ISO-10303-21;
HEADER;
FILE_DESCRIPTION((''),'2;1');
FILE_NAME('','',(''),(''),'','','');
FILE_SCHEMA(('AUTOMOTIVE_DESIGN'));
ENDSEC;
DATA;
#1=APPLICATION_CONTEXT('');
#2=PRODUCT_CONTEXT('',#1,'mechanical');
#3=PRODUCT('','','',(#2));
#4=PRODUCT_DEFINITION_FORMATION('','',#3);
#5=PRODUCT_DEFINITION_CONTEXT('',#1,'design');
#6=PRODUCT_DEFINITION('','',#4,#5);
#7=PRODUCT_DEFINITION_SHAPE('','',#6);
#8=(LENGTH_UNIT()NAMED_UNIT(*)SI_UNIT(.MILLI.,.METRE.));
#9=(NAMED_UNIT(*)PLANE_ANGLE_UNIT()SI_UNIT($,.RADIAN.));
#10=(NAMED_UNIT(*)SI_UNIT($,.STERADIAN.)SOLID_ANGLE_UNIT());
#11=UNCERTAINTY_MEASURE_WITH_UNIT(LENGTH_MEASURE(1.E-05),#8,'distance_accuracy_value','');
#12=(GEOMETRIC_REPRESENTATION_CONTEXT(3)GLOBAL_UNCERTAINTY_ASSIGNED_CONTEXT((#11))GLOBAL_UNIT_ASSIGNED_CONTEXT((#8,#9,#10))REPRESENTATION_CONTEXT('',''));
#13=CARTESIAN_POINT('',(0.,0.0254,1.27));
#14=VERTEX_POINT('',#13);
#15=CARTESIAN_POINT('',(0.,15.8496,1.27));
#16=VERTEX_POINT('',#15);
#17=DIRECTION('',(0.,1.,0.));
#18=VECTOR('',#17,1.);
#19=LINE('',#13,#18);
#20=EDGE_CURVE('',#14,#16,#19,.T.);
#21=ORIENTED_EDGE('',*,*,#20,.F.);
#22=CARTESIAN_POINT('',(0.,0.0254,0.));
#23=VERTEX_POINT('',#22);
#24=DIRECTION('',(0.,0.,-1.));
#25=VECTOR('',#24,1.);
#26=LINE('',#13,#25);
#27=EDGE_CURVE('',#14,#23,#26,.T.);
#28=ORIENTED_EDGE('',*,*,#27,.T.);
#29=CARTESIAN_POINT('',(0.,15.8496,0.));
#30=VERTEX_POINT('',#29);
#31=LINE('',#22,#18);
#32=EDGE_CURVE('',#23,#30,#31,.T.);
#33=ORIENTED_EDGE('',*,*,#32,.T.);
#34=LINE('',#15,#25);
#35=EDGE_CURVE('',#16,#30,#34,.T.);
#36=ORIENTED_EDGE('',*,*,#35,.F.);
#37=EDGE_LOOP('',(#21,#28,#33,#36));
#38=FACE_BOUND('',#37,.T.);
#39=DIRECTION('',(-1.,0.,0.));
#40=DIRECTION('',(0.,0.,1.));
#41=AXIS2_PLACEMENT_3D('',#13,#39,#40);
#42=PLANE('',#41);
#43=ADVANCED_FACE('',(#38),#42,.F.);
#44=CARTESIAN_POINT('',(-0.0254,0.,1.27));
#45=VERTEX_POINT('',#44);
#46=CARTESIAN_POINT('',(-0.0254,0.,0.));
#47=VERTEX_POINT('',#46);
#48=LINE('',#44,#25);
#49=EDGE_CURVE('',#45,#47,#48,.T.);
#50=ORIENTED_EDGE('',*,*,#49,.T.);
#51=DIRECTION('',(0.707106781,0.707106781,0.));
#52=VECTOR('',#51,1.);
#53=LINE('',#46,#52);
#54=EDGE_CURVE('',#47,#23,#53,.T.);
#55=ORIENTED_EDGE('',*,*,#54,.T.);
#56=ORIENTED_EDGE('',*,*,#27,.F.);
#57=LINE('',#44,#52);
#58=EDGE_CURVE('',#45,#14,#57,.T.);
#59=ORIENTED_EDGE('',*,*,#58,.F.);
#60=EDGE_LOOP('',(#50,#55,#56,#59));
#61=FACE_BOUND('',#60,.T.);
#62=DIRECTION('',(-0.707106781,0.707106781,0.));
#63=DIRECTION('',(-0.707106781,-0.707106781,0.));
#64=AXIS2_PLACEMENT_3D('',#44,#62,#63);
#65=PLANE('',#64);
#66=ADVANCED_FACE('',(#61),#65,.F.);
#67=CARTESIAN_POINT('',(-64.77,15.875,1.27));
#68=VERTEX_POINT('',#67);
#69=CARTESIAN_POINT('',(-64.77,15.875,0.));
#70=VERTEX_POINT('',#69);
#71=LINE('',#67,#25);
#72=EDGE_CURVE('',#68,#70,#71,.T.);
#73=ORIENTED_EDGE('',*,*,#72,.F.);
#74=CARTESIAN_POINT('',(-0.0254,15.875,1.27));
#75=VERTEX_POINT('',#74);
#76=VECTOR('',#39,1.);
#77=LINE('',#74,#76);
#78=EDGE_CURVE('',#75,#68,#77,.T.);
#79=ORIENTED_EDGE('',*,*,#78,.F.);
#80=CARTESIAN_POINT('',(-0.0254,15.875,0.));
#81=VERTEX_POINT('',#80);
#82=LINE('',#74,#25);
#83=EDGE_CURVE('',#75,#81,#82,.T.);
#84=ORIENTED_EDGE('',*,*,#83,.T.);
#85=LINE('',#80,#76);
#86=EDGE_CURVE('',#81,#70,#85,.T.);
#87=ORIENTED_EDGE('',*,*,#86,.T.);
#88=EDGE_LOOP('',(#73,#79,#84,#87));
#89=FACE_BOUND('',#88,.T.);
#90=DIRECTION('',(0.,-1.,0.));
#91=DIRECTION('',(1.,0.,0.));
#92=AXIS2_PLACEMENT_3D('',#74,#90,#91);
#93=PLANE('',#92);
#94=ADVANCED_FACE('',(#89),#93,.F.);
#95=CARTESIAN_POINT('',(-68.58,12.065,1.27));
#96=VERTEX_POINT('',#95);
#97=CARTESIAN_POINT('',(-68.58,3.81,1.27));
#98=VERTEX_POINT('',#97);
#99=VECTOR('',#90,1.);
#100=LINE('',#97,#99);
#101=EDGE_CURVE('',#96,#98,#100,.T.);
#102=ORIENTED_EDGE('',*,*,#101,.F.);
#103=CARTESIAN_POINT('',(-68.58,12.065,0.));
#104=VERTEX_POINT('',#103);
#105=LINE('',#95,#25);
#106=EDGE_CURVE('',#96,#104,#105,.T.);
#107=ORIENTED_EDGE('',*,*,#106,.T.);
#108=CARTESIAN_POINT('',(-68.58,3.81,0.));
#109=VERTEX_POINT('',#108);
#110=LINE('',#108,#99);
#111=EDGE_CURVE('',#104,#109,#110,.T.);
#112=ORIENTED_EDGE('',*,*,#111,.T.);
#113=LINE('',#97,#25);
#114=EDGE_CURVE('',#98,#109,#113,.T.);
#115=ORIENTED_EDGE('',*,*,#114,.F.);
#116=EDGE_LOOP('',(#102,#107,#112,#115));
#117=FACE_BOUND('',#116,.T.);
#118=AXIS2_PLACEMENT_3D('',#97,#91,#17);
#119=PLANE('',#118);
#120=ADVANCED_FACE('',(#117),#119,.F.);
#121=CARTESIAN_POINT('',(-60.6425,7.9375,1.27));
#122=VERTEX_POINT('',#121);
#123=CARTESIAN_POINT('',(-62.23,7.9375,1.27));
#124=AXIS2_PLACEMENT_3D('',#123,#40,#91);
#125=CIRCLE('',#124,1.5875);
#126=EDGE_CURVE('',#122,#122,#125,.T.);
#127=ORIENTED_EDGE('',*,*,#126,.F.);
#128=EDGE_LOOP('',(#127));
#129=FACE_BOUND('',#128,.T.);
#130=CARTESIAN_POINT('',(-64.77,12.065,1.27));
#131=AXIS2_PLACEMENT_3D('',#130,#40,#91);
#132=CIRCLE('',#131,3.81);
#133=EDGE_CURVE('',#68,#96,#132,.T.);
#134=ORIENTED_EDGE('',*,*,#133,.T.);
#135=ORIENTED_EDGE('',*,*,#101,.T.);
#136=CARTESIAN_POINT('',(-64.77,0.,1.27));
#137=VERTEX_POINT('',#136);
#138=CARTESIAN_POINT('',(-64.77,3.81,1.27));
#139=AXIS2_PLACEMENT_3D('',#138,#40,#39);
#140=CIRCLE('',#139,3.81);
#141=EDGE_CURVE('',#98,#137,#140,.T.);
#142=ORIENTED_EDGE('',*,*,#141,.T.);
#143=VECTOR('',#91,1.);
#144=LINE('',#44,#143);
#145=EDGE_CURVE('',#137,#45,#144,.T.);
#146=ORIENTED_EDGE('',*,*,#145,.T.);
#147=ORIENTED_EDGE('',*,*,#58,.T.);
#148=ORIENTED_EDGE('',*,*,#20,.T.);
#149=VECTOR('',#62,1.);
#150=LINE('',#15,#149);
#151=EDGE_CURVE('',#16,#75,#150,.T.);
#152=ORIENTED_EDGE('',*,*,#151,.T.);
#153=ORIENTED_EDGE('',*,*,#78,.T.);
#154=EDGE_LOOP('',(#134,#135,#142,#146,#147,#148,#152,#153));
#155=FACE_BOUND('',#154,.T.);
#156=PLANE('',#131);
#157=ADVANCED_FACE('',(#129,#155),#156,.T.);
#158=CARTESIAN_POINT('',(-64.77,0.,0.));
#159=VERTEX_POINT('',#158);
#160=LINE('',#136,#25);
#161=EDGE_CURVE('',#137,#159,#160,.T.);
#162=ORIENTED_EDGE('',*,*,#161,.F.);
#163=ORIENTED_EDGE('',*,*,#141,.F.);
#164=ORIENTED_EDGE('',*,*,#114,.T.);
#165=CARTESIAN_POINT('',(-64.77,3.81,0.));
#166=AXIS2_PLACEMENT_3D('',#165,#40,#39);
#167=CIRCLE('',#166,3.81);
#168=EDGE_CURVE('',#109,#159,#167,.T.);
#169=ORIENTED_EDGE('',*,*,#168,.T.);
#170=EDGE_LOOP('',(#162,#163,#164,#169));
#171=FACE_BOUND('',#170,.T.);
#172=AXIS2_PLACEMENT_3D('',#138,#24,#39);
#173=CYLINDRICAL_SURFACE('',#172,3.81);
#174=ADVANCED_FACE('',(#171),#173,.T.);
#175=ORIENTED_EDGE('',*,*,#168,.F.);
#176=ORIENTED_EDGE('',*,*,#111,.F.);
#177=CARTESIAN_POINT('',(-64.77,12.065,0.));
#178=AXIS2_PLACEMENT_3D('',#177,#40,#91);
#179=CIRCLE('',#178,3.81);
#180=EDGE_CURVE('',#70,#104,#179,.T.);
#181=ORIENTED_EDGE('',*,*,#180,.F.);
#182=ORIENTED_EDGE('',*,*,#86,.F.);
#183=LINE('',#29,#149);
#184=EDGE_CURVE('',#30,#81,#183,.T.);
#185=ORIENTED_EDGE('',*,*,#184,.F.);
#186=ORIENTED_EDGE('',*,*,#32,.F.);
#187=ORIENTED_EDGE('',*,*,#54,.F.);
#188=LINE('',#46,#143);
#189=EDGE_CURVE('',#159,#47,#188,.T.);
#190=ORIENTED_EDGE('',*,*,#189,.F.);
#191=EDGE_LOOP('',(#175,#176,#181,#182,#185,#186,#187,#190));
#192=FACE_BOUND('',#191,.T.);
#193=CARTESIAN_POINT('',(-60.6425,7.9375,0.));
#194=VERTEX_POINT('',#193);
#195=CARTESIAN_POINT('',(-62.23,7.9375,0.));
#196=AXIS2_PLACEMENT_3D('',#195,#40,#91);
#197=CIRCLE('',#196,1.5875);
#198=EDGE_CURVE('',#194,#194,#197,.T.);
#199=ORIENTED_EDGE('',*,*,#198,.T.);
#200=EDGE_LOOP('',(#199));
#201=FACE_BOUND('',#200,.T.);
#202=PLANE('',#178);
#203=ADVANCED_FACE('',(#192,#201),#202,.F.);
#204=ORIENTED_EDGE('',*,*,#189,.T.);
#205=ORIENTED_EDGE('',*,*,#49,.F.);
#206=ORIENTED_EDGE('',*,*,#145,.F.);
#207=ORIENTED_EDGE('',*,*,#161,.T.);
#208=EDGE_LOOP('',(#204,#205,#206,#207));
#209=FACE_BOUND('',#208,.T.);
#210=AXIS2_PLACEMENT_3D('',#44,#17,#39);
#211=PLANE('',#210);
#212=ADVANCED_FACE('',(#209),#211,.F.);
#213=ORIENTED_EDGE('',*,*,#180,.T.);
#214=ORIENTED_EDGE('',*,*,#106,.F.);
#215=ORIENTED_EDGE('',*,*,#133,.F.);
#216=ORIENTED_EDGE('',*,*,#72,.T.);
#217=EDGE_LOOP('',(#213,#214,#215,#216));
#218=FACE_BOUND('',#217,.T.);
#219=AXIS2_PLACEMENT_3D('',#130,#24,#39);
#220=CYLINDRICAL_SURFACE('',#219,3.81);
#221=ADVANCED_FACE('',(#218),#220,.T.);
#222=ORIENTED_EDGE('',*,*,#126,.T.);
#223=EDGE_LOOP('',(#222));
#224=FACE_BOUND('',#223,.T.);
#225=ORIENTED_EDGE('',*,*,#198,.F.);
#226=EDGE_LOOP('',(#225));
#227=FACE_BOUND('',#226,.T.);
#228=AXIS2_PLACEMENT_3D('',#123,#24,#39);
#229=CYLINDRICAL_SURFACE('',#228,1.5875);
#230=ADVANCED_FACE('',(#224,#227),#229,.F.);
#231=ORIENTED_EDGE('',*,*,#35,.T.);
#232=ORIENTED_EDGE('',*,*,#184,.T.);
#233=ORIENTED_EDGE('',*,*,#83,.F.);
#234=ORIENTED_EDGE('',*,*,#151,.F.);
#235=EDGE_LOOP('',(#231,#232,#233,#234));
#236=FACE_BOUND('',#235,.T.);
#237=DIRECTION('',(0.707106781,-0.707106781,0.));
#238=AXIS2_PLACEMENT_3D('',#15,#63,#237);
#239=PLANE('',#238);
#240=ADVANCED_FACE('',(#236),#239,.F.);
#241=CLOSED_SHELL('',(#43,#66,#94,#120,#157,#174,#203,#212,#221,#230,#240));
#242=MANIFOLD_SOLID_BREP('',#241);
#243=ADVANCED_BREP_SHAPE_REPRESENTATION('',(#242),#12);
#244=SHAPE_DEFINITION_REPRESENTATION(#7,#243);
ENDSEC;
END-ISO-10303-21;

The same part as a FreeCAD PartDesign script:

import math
import FreeCAD as App
import Part
import Sketcher

V = App.Vector
Q = App.Units.Quantity

doc = App.newDocument("Part")
params = doc.addObject("Spreadsheet::Sheet", "Params")
for row, (alias, value) in enumerate([
    ("sketch1_radius", "0.15 in"),
    ("sketch1_diameter", "0.125 in"),
    ("sketch1_width", "2.549 in"),
    ("sketch1_height", "0.325 in"),
    ("pad1_length", "0.05 in"),
], start=1):
    params.set(f"A{row}", alias)
    params.set(f"B{row}", "=" + value)
    params.setAlias(f"B{row}", alias)

body = doc.addObject("PartDesign::Body", "Body")

# Sketch on XY plane
sketch1 = doc.addObject("Sketcher::SketchObject", "Sketch")
body.addObject(sketch1)
sketch1.AttachmentSupport = (doc.XY_Plane, [""])
sketch1.MapMode = "FlatFace"
sketch1.addGeometry([
    Part.LineSegment(V(0, 15.8496, 0), V(-0.0254, 15.875, 0)),  # 0
    Part.LineSegment(V(-0.0254, 15.875, 0), V(-64.77, 15.875, 0)),  # 1
    Part.ArcOfCircle(Part.Circle(V(-64.77, 12.065, 0), V(0, 0, 1), 3.81), math.radians(90), math.radians(180)),  # 2
    Part.LineSegment(V(-68.58, 12.065, 0), V(-68.58, 3.81, 0)),  # 3
    Part.ArcOfCircle(Part.Circle(V(-64.77, 3.81, 0), V(0, 0, 1), 3.81), math.radians(-180), math.radians(-90)),  # 4
    Part.LineSegment(V(-64.77, 0, 0), V(-0.0254, 0, 0)),  # 5
    Part.LineSegment(V(-0.0254, 0, 0), V(0, 0.0254, 0)),  # 6
    Part.LineSegment(V(0, 0.0254, 0), V(0, 15.8496, 0)),  # 7
    Part.Circle(V(-62.23, 7.9375, 0), V(0, 0, 1), 1.5875),  # 8
], False)
sketch1.addConstraint([
    Sketcher.Constraint("Coincident", 0, 2, 1, 1),
    Sketcher.Constraint("Tangent", 1, 2, 2, 1),
    Sketcher.Constraint("Tangent", 2, 2, 3, 1),
    Sketcher.Constraint("Tangent", 3, 2, 4, 1),
    Sketcher.Constraint("Tangent", 4, 2, 5, 1),
    Sketcher.Constraint("Coincident", 5, 2, 6, 1),
    Sketcher.Constraint("Coincident", 6, 2, 7, 1),
    Sketcher.Constraint("Coincident", 7, 2, 0, 1),
    Sketcher.Constraint("Horizontal", 1),
    Sketcher.Constraint("Vertical", 3),
    Sketcher.Constraint("Horizontal", 5),
    Sketcher.Constraint("Vertical", 7),
    Sketcher.Constraint("Equal", 2, 4),
    Sketcher.Constraint("PointOnObject", 4, 2, -1),
    Sketcher.Constraint("PointOnObject", 6, 2, -2),
    Sketcher.Constraint("Perpendicular", 0, 6),
    Sketcher.Constraint("Vertical", 0, 2, 5, 2),
    Sketcher.Constraint("Equal", 0, 6),
    Sketcher.Constraint("Radius", 2, Q("0.15 in")),
    Sketcher.Constraint("Diameter", 8, Q("0.125 in")),
    Sketcher.Constraint("DistanceX", 2, 2, -1, 1, Q("2.7 in")),
    Sketcher.Constraint("DistanceX", 2, 3, 8, 3, Q("0.1 in")),
    Sketcher.Constraint("DistanceX", 1, 2, 1, 1, Q("2.549 in")),
    Sketcher.Constraint("DistanceY", 3, 2, 3, 1, Q("0.325 in")),
    Sketcher.Constraint("DistanceY", -1, 1, 8, 3, Q("0.3125 in")),
])
sketch1.setExpression("Constraints[18]", "Params.sketch1_radius")
sketch1.setExpression("Constraints[19]", "Params.sketch1_diameter")
sketch1.setExpression("Constraints[22]", "Params.sketch1_width")
sketch1.setExpression("Constraints[23]", "Params.sketch1_height")
pad1 = doc.addObject("PartDesign::Pad", "Pad")
body.addObject(pad1)
pad1.Profile = sketch1
pad1.setExpression("Length", "Params.pad1_length")

doc.recompute()
